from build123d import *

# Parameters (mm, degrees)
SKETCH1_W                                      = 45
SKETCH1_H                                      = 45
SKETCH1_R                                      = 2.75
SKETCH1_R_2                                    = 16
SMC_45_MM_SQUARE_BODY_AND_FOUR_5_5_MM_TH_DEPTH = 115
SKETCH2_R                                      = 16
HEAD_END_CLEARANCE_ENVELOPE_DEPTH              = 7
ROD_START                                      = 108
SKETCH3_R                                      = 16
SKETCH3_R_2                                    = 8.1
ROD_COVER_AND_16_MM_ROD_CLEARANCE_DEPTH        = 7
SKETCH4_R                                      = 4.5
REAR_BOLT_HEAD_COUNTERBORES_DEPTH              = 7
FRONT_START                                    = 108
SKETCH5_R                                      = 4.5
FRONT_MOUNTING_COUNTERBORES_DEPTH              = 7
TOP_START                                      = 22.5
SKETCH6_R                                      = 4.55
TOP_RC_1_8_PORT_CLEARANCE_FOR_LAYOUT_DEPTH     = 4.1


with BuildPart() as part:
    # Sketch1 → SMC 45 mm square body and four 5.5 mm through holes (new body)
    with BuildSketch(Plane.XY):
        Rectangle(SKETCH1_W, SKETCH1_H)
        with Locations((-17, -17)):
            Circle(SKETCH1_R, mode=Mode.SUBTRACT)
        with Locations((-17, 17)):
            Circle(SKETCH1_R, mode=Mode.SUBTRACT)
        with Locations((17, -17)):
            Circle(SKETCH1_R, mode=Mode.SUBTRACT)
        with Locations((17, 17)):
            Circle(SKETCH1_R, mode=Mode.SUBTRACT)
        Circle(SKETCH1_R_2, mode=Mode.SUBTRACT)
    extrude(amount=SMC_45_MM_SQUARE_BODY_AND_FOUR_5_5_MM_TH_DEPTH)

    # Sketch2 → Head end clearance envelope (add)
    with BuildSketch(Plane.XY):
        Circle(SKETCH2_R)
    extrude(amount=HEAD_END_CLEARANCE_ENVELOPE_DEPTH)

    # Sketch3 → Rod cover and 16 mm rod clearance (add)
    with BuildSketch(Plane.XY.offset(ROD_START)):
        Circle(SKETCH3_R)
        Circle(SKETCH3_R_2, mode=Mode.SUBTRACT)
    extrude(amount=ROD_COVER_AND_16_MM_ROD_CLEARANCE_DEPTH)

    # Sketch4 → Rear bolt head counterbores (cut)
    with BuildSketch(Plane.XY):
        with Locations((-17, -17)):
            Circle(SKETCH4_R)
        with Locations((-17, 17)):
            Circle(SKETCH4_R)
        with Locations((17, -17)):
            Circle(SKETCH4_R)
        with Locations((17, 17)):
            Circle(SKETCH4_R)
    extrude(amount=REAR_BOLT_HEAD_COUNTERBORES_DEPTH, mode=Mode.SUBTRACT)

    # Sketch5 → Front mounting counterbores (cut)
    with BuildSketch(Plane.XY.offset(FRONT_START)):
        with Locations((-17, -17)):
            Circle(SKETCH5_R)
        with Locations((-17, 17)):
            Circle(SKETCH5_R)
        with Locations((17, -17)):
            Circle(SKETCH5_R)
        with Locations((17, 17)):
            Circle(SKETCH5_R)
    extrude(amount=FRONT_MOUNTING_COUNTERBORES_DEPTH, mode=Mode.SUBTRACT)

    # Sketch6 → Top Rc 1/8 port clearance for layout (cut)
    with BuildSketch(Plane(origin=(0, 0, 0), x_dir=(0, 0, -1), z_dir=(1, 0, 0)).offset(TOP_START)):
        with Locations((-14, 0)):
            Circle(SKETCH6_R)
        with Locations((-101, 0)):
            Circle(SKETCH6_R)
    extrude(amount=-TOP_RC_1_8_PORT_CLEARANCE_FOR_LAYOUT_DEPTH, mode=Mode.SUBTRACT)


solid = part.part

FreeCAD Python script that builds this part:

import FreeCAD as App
import Part
import Sketcher


def add_polygon(sketch, points):
    """Adds a closed chain of lines whose ends are joined by coincident constraints."""
    first, n = sketch.GeometryCount, len(points)
    for a, b in zip(points, points[1:] + points[:1]):
        sketch.addGeometry(Part.LineSegment(App.Vector(*a, 0), App.Vector(*b, 0)), False)
    for i in range(n):
        sketch.addConstraint(Sketcher.Constraint("Coincident", first + i, 2, first + (i + 1) % n, 1))

doc = App.newDocument("Part")
body = doc.addObject("PartDesign::Body", "Body")

sketch1 = body.newObject("Sketcher::SketchObject", "Sketch")
sketch1.AttachmentSupport = (doc.getObject("XY_Plane"), [""])
sketch1.MapMode = "FlatFace"
add_polygon(sketch1, [(-22.5, 22.5), (-22.5, -22.5), (22.5, -22.5), (22.5, 22.5)])
sketch1.addGeometry(Part.Circle(App.Vector(-17, -17, 0), App.Vector(0, 0, 1), 2.8), False)
sketch1.addGeometry(Part.Circle(App.Vector(17, -17, 0), App.Vector(0, 0, 1), 2.8), False)
sketch1.addGeometry(Part.Circle(App.Vector(-17, 17, 0), App.Vector(0, 0, 1), 2.8), False)
sketch1.addGeometry(Part.Circle(App.Vector(0, 0, 0), App.Vector(0, 0, 1), 16), False)
sketch1.addGeometry(Part.Circle(App.Vector(17, 17, 0), App.Vector(0, 0, 1), 2.8), False)
sketch1.addConstraint(Sketcher.Constraint("Vertical", 0))
sketch1.addConstraint(Sketcher.Constraint("Horizontal", 1))
sketch1.addConstraint(Sketcher.Constraint("Vertical", 2))
sketch1.addConstraint(Sketcher.Constraint("Horizontal", 3))
sketch1.addConstraint(Sketcher.Constraint("Coincident", 7, 3, -1, 1))
sketch1.addConstraint(Sketcher.Constraint("Equal", 4, 5))
sketch1.addConstraint(Sketcher.Constraint("Equal", 5, 6))
sketch1.addConstraint(Sketcher.Constraint("Equal", 6, 8))
sketch1.addConstraint(Sketcher.Constraint("Symmetric", 5, 3, 6, 3, -1, 1))
sketch1.addConstraint(Sketcher.Constraint("Symmetric", 4, 3, 8, 3, -1, 1))
sketch1.addConstraint(Sketcher.Constraint("Symmetric", 0, 2, 2, 2, -1, 1))
sketch1.addConstraint(Sketcher.Constraint("Symmetric", 4, 3, 5, 3, -2))
sketch1.addConstraint(Sketcher.Constraint("Equal", 3, 0))
sketch1.addConstraint(Sketcher.Constraint("Diameter", 7, 32.0))
sketch1.addConstraint(Sketcher.Constraint("Diameter", 4, 5.5))
sketch1.addConstraint(Sketcher.Constraint("DistanceX", 1, 1, 1, 2, 45.0))
sketch1.addConstraint(Sketcher.Constraint("DistanceX", 4, 3, -1, 1, 17.0))
sketch1.addConstraint(Sketcher.Constraint("DistanceY", 4, 3, -1, 1, 17.0))
pad1 = body.newObject("PartDesign::Pad", "Pad")
pad1.Profile = sketch1
pad1.Length = 115

sketch2 = body.newObject("Sketcher::SketchObject", "Sketch001")
sketch2.AttachmentSupport = (doc.getObject("XY_Plane"), [""])
sketch2.MapMode = "FlatFace"
sketch2.addGeometry(Part.Circle(App.Vector(0, 0, 0), App.Vector(0, 0, 1), 16), False)
sketch2.addConstraint(Sketcher.Constraint("Coincident", 0, 3, -1, 1))
sketch2.addConstraint(Sketcher.Constraint("Diameter", 0, 32.0))
pad2 = body.newObject("PartDesign::Pad", "Pad001")
pad2.Profile = sketch2
pad2.Length = 7

sketch3 = body.newObject("Sketcher::SketchObject", "Sketch002")
sketch3.AttachmentSupport = (doc.getObject("XY_Plane"), [""])
sketch3.MapMode = "FlatFace"
sketch3.AttachmentOffset = App.Placement(App.Vector(0, 0, 108), App.Rotation())
sketch3.addGeometry(Part.Circle(App.Vector(0, 0, 0), App.Vector(0, 0, 1), 16), False)
sketch3.addGeometry(Part.Circle(App.Vector(0, 0, 0), App.Vector(0, 0, 1), 8), False)
sketch3.addConstraint(Sketcher.Constraint("Coincident", 0, 3, -1, 1))
sketch3.addConstraint(Sketcher.Constraint("Coincident", 1, 3, -1, 1))
sketch3.addConstraint(Sketcher.Constraint("Diameter", 0, 32.0))
sketch3.addConstraint(Sketcher.Constraint("Diameter", 1, 16.2))
pad3 = body.newObject("PartDesign::Pad", "Pad002")
pad3.Profile = sketch3
pad3.Length = 7

sketch4 = body.newObject("Sketcher::SketchObject", "Sketch003")
sketch4.AttachmentSupport = (doc.getObject("XY_Plane"), [""])
sketch4.MapMode = "FlatFace"
sketch4.addGeometry(Part.Circle(App.Vector(-17, -17, 0), App.Vector(0, 0, 1), 4.5), False)
sketch4.addGeometry(Part.Circle(App.Vector(-17, 17, 0), App.Vector(0, 0, 1), 4.5), False)
sketch4.addGeometry(Part.Circle(App.Vector(17, -17, 0), App.Vector(0, 0, 1), 4.5), False)
sketch4.addGeometry(Part.Circle(App.Vector(17, 17, 0), App.Vector(0, 0, 1), 4.5), False)
sketch4.addConstraint(Sketcher.Constraint("Equal", 0, 1))
sketch4.addConstraint(Sketcher.Constraint("Equal", 1, 2))
sketch4.addConstraint(Sketcher.Constraint("Equal", 2, 3))
sketch4.addConstraint(Sketcher.Constraint("Symmetric", 1, 3, 2, 3, -1, 1))
sketch4.addConstraint(Sketcher.Constraint("Symmetric", 0, 3, 3, 3, -1, 1))
sketch4.addConstraint(Sketcher.Constraint("Symmetric", 0, 3, 2, 3, -2))
sketch4.addConstraint(Sketcher.Constraint("Diameter", 0, 9.0))
sketch4.addConstraint(Sketcher.Constraint("DistanceX", 0, 3, -1, 1, 17.0))
sketch4.addConstraint(Sketcher.Constraint("DistanceY", 0, 3, -1, 1, 17.0))
pocket1 = body.newObject("PartDesign::Pocket", "Pocket")
pocket1.Profile = sketch4
pocket1.Length = 7
pocket1.Reversed = True

sketch5 = body.newObject("Sketcher::SketchObject", "Sketch004")
sketch5.AttachmentSupport = (doc.getObject("XY_Plane"), [""])
sketch5.MapMode = "FlatFace"
sketch5.AttachmentOffset = App.Placement(App.Vector(0, 0, 108), App.Rotation())
sketch5.addGeometry(Part.Circle(App.Vector(-17, -17, 0), App.Vector(0, 0, 1), 4.5), False)
sketch5.addGeometry(Part.Circle(App.Vector(-17, 17, 0), App.Vector(0, 0, 1), 4.5), False)
sketch5.addGeometry(Part.Circle(App.Vector(17, -17, 0), App.Vector(0, 0, 1), 4.5), False)
sketch5.addGeometry(Part.Circle(App.Vector(17, 17, 0), App.Vector(0, 0, 1), 4.5), False)
sketch5.addConstraint(Sketcher.Constraint("Equal", 0, 1))
sketch5.addConstraint(Sketcher.Constraint("Equal", 1, 2))
sketch5.addConstraint(Sketcher.Constraint("Equal", 2, 3))
sketch5.addConstraint(Sketcher.Constraint("Symmetric", 1, 3, 2, 3, -1, 1))
sketch5.addConstraint(Sketcher.Constraint("Symmetric", 0, 3, 3, 3, -1, 1))
sketch5.addConstraint(Sketcher.Constraint("Symmetric", 0, 3, 2, 3, -2))
sketch5.addConstraint(Sketcher.Constraint("Diameter", 0, 9.0))
sketch5.addConstraint(Sketcher.Constraint("DistanceX", 0, 3, -1, 1, 17.0))
sketch5.addConstraint(Sketcher.Constraint("DistanceY", 0, 3, -1, 1, 17.0))
pocket2 = body.newObject("PartDesign::Pocket", "Pocket001")
pocket2.Profile = sketch5
pocket2.Length = 7
pocket2.Reversed = True

sketch6 = body.newObject("Sketcher::SketchObject", "Sketch005")
sketch6.AttachmentSupport = (doc.getObject("YZ_Plane"), [""])
sketch6.MapMode = "FlatFace"
sketch6.AttachmentOffset = App.Placement(App.Vector(0, 0, 22.5), App.Rotation())
sketch6.addGeometry(Part.Circle(App.Vector(0, 14, 0), App.Vector(0, 0, 1), 4.5), False)
sketch6.addGeometry(Part.Circle(App.Vector(0, 101, 0), App.Vector(0, 0, 1), 4.5), False)
sketch6.addConstraint(Sketcher.Constraint("Equal", 0, 1))
sketch6.addConstraint(Sketcher.Constraint("PointOnObject", 0, 3, -2))
sketch6.addConstraint(Sketcher.Constraint("PointOnObject", 1, 3, -2))
sketch6.addConstraint(Sketcher.Constraint("Diameter", 0, 9.1))
sketch6.addConstraint(Sketcher.Constraint("DistanceY", -1, 1, 0, 3, 14.0))
sketch6.addConstraint(Sketcher.Constraint("DistanceY", -1, 1, 1, 3, 101.0))
pocket3 = body.newObject("PartDesign::Pocket", "Pocket002")
pocket3.Profile = sketch6
pocket3.Length = 4.1

doc.recompute()
